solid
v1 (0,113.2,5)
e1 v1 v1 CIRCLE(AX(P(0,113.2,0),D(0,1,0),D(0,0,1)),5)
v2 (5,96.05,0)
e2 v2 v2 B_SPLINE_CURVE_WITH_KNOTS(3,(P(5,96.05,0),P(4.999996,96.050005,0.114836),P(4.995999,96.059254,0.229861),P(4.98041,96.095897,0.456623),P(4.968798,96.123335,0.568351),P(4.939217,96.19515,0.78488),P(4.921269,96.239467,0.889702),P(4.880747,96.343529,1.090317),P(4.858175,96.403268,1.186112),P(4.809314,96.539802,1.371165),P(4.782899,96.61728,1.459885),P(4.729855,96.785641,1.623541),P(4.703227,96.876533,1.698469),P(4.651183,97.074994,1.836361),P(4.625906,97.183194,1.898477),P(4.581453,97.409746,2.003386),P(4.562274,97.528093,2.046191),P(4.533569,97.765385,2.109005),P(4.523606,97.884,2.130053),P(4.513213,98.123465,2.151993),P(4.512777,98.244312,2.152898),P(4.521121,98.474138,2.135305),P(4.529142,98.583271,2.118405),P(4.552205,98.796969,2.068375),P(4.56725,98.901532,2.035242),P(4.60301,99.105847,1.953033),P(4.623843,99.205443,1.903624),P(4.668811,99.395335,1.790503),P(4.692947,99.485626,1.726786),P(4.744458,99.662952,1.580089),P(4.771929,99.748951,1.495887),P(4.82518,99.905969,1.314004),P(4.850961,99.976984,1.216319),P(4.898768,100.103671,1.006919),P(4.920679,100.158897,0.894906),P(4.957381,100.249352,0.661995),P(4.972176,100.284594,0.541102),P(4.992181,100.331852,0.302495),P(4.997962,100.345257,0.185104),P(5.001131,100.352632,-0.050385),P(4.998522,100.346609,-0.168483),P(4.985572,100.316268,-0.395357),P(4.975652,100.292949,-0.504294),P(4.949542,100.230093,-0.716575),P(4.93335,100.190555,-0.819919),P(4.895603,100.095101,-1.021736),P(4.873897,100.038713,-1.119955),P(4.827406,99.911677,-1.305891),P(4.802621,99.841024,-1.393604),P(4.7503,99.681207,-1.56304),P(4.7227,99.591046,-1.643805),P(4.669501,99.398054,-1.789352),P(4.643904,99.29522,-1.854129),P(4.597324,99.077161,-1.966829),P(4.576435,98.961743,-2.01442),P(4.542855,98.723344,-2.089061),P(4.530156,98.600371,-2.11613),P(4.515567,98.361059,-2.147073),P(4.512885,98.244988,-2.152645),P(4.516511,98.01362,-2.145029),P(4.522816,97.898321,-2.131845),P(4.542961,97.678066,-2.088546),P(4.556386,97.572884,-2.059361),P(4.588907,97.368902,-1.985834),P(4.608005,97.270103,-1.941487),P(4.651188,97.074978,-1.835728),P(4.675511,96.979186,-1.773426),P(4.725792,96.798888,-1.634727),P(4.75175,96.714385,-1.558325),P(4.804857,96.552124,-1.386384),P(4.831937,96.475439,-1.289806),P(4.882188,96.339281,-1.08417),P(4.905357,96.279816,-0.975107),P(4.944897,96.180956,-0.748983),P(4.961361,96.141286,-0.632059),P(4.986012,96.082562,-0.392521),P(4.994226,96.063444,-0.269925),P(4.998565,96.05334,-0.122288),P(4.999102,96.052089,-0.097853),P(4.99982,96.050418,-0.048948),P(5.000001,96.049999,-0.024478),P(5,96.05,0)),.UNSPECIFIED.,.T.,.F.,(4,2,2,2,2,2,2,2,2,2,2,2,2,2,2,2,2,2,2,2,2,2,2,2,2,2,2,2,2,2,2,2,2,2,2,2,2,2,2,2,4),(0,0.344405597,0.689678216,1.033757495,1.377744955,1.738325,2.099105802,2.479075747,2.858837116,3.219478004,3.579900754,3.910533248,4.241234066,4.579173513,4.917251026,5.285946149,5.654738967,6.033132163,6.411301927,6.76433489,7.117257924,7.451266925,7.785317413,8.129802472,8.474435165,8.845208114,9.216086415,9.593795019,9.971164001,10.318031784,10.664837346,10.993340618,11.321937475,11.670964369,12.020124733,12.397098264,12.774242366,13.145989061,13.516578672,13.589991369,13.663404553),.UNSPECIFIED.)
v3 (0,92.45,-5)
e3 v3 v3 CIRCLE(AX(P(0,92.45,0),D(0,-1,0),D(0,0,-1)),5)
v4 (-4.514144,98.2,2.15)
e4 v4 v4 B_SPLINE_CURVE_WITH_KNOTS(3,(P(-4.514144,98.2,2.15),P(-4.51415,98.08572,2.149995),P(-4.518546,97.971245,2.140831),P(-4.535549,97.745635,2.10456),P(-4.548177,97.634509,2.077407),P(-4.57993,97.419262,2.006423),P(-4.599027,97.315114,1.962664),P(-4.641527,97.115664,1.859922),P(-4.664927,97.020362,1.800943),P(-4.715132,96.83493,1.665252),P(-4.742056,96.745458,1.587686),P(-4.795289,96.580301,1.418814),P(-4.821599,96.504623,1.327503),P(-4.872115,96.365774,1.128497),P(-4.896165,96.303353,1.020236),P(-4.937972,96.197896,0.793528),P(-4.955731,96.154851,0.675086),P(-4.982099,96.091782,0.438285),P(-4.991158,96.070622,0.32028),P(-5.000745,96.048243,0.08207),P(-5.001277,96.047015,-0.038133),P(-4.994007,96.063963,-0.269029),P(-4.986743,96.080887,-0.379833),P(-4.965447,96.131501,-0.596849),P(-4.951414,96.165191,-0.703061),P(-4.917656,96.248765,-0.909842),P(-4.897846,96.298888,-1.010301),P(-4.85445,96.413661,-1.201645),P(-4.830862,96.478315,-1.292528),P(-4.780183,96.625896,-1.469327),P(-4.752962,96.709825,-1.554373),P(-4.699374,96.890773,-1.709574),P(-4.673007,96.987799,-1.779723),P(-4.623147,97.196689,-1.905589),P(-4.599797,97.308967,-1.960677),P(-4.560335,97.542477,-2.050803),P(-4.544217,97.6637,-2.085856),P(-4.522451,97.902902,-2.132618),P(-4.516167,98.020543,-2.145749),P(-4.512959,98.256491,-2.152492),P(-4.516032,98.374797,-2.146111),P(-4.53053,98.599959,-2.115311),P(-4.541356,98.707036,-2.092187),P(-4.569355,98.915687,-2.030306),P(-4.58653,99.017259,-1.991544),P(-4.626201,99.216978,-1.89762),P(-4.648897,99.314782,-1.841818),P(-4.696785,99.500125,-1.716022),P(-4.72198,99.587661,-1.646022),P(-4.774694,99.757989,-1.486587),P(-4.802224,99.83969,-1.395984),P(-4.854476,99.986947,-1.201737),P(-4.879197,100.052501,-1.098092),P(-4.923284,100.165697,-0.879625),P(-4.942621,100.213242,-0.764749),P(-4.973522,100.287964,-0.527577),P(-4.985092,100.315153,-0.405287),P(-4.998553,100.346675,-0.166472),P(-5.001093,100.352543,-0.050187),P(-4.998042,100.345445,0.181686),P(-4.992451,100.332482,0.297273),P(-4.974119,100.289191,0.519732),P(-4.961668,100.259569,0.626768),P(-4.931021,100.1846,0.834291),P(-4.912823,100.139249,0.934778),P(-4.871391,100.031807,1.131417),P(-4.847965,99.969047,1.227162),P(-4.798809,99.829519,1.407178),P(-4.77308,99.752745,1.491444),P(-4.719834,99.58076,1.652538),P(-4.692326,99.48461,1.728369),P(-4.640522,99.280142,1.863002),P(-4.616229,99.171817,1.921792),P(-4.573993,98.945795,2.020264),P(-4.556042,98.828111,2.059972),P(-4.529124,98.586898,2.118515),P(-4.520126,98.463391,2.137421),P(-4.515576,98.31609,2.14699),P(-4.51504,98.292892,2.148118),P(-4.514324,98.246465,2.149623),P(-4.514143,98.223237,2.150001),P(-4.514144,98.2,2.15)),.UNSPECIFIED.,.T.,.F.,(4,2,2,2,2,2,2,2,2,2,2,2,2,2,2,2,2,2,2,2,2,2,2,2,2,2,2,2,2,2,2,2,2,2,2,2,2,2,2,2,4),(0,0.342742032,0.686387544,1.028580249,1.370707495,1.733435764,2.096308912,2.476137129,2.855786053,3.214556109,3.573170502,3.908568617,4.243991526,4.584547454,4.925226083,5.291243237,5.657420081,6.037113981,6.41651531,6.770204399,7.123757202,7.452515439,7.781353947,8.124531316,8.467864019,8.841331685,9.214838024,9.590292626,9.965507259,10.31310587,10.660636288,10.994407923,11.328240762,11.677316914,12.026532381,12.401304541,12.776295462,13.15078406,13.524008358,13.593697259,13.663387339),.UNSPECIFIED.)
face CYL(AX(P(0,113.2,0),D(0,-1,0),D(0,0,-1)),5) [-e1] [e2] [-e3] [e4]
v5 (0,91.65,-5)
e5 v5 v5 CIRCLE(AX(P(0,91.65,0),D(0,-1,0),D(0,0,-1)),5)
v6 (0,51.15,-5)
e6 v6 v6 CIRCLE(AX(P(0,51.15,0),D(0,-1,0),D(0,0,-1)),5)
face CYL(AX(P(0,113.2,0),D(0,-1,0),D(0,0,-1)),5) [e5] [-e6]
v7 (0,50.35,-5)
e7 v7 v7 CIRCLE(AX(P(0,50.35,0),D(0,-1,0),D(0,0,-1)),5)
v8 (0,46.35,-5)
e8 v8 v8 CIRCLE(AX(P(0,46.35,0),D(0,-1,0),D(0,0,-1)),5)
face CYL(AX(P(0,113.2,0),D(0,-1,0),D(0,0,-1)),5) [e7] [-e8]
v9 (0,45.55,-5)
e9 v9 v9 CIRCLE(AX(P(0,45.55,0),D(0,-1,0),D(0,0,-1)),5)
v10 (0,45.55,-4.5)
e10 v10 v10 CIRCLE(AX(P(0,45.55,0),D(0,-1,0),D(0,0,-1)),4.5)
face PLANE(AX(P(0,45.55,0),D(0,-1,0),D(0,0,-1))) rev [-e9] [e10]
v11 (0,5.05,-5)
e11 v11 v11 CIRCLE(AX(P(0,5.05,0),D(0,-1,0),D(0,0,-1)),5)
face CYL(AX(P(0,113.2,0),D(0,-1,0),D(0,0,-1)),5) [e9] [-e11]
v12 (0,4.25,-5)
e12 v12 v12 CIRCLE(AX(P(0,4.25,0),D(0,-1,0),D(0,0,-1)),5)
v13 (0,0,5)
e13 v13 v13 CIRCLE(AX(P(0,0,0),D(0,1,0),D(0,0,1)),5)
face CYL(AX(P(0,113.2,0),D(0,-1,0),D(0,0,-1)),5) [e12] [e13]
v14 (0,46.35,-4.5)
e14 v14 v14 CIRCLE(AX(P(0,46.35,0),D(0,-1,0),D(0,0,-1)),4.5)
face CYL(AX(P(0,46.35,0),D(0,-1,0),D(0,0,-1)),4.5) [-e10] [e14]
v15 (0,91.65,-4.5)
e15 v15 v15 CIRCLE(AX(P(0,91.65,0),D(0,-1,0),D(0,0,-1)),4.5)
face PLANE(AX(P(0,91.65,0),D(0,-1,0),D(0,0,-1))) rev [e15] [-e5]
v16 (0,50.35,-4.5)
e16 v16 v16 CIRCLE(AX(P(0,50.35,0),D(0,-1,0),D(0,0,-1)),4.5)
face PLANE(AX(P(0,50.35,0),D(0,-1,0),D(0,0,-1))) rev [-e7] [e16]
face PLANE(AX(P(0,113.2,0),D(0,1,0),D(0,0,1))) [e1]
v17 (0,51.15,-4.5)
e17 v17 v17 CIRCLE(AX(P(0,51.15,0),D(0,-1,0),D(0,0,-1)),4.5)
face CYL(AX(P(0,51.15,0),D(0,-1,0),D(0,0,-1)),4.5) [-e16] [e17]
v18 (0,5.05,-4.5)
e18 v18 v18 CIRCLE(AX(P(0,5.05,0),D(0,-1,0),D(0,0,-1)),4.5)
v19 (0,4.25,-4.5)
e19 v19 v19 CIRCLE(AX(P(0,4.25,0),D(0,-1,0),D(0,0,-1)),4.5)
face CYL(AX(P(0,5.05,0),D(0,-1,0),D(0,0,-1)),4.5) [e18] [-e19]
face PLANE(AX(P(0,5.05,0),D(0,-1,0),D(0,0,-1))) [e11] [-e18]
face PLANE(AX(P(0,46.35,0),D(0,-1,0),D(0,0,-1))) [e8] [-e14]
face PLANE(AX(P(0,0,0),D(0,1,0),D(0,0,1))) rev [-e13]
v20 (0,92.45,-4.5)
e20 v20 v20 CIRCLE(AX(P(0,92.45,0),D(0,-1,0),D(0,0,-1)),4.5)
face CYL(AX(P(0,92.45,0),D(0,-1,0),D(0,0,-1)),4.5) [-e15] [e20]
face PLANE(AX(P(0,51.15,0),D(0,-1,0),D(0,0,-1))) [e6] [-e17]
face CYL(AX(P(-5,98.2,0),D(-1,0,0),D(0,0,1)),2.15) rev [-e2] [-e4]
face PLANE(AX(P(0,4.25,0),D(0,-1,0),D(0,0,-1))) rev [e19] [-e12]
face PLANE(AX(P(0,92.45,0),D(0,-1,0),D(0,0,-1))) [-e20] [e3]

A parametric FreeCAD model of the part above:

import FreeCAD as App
import Part
import Sketcher
Q = App.Units.Quantity

doc = App.newDocument("Part")
body = doc.addObject("PartDesign::Body", "Body")

# Sketch on XZ plane
sketch1 = body.newObject("Sketcher::SketchObject", "Sketch")
sketch1.AttachmentSupport = (doc.getObject("XZ_Plane"), [""])
sketch1.MapMode = "FlatFace"
sketch1.addGeometry(Part.Circle(App.Vector(0, 0, 0), App.Vector(0, 0, 1), 5), False)
sketch1.addConstraint([
    Sketcher.Constraint("Coincident", 0, 3, -1, 1),
    Sketcher.Constraint("Diameter", 0, Q("10 mm")),
])
pad1 = body.newObject("PartDesign::Pad", "Pad")
pad1.Profile = sketch1
pad1.Length = 113.2
pad1.Reversed = True

# Sketch on XZ plane
sketch2 = body.newObject("Sketcher::SketchObject", "Sketch001")
sketch2.AttachmentSupport = (doc.getObject("XZ_Plane"), [""])
sketch2.MapMode = "FlatFace"
sketch2.AttachmentOffset = App.Placement(App.Vector(0, 0, -4.25), App.Rotation())
sketch2.addGeometry([
    Part.Circle(App.Vector(0, 0, 0), App.Vector(0, 0, 1), 5),
    Part.Circle(App.Vector(0, 0, 0), App.Vector(0, 0, 1), 4.5),
], False)
sketch2.addConstraint([
    Sketcher.Constraint("Coincident", 0, 3, -1, 1),
    Sketcher.Constraint("Coincident", 1, 3, -1, 1),
    Sketcher.Constraint("Diameter", 0, Q("10 mm")),
    Sketcher.Constraint("Diameter", 1, Q("9 mm")),
])
pocket1 = body.newObject("PartDesign::Pocket", "Pocket")
pocket1.Profile = sketch2
pocket1.Length = 0.8

# Sketch on XZ plane
sketch3 = body.newObject("Sketcher::SketchObject", "Sketch002")
sketch3.AttachmentSupport = (doc.getObject("XZ_Plane"), [""])
sketch3.MapMode = "FlatFace"
sketch3.AttachmentOffset = App.Placement(App.Vector(0, 0, -45.55), App.Rotation())
sketch3.addGeometry([
    Part.Circle(App.Vector(0, 0, 0), App.Vector(0, 0, 1), 5),
    Part.Circle(App.Vector(0, 0, 0), App.Vector(0, 0, 1), 4.5),
], False)
sketch3.addConstraint([
    Sketcher.Constraint("Coincident", 0, 3, -1, 1),
    Sketcher.Constraint("Coincident", 1, 3, -1, 1),
    Sketcher.Constraint("Diameter", 0, Q("10 mm")),
    Sketcher.Constraint("Diameter", 1, Q("9 mm")),
])
pocket2 = body.newObject("PartDesign::Pocket", "Pocket001")
pocket2.Profile = sketch3
pocket2.Length = 0.8

# Sketch on XZ plane
sketch4 = body.newObject("Sketcher::SketchObject", "Sketch003")
sketch4.AttachmentSupport = (doc.getObject("XZ_Plane"), [""])
sketch4.MapMode = "FlatFace"
sketch4.AttachmentOffset = App.Placement(App.Vector(0, 0, -50.35), App.Rotation())
sketch4.addGeometry([
    Part.Circle(App.Vector(0, 0, 0), App.Vector(0, 0, 1), 5),
    Part.Circle(App.Vector(0, 0, 0), App.Vector(0, 0, 1), 4.5),
], False)
sketch4.addConstraint([
    Sketcher.Constraint("Coincident", 0, 3, -1, 1),
    Sketcher.Constraint("Coincident", 1, 3, -1, 1),
    Sketcher.Constraint("Diameter", 0, Q("10 mm")),
    Sketcher.Constraint("Diameter", 1, Q("9 mm")),
])
pocket3 = body.newObject("PartDesign::Pocket", "Pocket002")
pocket3.Profile = sketch4
pocket3.Length = 0.8

# Sketch on XZ plane
sketch5 = body.newObject("Sketcher::SketchObject", "Sketch004")
sketch5.AttachmentSupport = (doc.getObject("XZ_Plane"), [""])
sketch5.MapMode = "FlatFace"
sketch5.AttachmentOffset = App.Placement(App.Vector(0, 0, -91.65), App.Rotation())
sketch5.addGeometry([
    Part.Circle(App.Vector(0, 0, 0), App.Vector(0, 0, 1), 5),
    Part.Circle(App.Vector(0, 0, 0), App.Vector(0, 0, 1), 4.5),
], False)
sketch5.addConstraint([
    Sketcher.Constraint("Coincident", 0, 3, -1, 1),
    Sketcher.Constraint("Coincident", 1, 3, -1, 1),
    Sketcher.Constraint("Diameter", 0, Q("10 mm")),
    Sketcher.Constraint("Diameter", 1, Q("9 mm")),
])
pocket4 = body.newObject("PartDesign::Pocket", "Pocket003")
pocket4.Profile = sketch5
pocket4.Length = 0.8

# Sketch on YZ plane
sketch6 = body.newObject("Sketcher::SketchObject", "Sketch005")
sketch6.AttachmentSupport = (doc.getObject("YZ_Plane"), [""])
sketch6.MapMode = "FlatFace"
sketch6.AttachmentOffset = App.Placement(App.Vector(0, 0, -5), App.Rotation())
sketch6.addGeometry(Part.Circle(App.Vector(98.2, 0, 0), App.Vector(0, 0, 1), 1.5), False)
sketch6.addConstraint([
    Sketcher.Constraint("PointOnObject", 0, 3, -1),
    Sketcher.Constraint("Diameter", 0, Q("3 mm")),
    Sketcher.Constraint("DistanceX", -1, 1, 0, 3, Q("98.2 mm")),
])
pocket5 = body.newObject("PartDesign::Pocket", "Pocket004")
pocket5.Profile = sketch6
pocket5.Type = "ThroughAll"
pocket5.Reversed = True

# Sketch on YZ plane
sketch7 = body.newObject("Sketcher::SketchObject", "Sketch006")
sketch7.AttachmentSupport = (doc.getObject("YZ_Plane"), [""])
sketch7.MapMode = "FlatFace"
sketch7.AttachmentOffset = App.Placement(App.Vector(0, 0, -5), App.Rotation())
sketch7.addGeometry(Part.Circle(App.Vector(98.2, 0, 0), App.Vector(0, 0, 1), 2.15), False)
sketch7.addConstraint([
    Sketcher.Constraint("PointOnObject", 0, 3, -1),
    Sketcher.Constraint("Diameter", 0, Q("4.3 mm")),
    Sketcher.Constraint("DistanceX", -1, 1, 0, 3, Q("98.2 mm")),
])
doc.recompute()
hole = body.newObject("PartDesign::Hole", "Hole")
hole.Profile = sketch7
hole.ThreadType = "None"
hole.Diameter = 4.3
hole.DepthType = "ThroughAll"
hole.Reversed = True

doc.recompute()
